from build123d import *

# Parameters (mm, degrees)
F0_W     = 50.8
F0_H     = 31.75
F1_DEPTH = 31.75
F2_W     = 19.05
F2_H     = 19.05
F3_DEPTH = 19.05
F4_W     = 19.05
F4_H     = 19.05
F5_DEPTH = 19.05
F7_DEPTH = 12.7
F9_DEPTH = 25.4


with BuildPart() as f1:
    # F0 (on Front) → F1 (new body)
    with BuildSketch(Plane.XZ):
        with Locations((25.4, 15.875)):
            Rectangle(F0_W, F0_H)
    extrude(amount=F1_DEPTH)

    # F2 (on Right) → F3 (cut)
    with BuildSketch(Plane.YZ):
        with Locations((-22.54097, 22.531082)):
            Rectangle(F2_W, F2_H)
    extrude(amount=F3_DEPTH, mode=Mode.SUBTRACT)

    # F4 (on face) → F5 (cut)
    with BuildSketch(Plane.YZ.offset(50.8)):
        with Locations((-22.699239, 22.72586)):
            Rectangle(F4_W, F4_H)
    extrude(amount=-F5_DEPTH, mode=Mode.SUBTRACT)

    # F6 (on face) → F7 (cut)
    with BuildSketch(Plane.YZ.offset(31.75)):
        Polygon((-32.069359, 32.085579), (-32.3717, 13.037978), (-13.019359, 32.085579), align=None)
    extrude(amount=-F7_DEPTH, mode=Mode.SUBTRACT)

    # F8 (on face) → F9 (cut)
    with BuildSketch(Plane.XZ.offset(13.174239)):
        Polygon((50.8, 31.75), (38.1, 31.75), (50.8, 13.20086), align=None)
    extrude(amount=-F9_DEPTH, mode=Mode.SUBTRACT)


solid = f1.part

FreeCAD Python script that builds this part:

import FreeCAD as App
import Part
import Sketcher

V = App.Vector
Q = App.Units.Quantity

doc = App.newDocument("Part")
body = doc.addObject("PartDesign::Body", "Body")

# Sketch on XZ plane
sketch1 = doc.addObject("Sketcher::SketchObject", "Sketch")
body.addObject(sketch1)
sketch1.AttachmentSupport = (doc.XZ_Plane, [""])
sketch1.MapMode = "FlatFace"
sketch1.addGeometry([
    Part.LineSegment(V(0, 32, 0), V(0, 0, 0)),
    Part.LineSegment(V(0, 0, 0), V(51, 0, 0)),
    Part.LineSegment(V(51, 0, 0), V(51, 32, 0)),
    Part.LineSegment(V(51, 32, 0), V(0, 32, 0)),
], False)
sketch1.addConstraint([
    Sketcher.Constraint("Coincident", 0, 2, 1, 1),
    Sketcher.Constraint("Coincident", 1, 2, 2, 1),
    Sketcher.Constraint("Coincident", 2, 2, 3, 1),
    Sketcher.Constraint("Coincident", 3, 2, 0, 1),
    Sketcher.Constraint("Vertical", 0),
    Sketcher.Constraint("Horizontal", 1),
    Sketcher.Constraint("Vertical", 2),
    Sketcher.Constraint("Horizontal", 3),
    Sketcher.Constraint("Coincident", 0, 2, -1, 1),
    Sketcher.Constraint("DistanceX", 1, 1, 1, 2, Q("2 in")),
    Sketcher.Constraint("DistanceY", 0, 2, 0, 1, Q("1.25 in")),
])
pad1 = doc.addObject("PartDesign::Pad", "Pad")
body.addObject(pad1)
pad1.Profile = sketch1
pad1.Length = Q("1.25 in")

# Sketch on YZ plane
sketch2 = doc.addObject("Sketcher::SketchObject", "Sketch001")
body.addObject(sketch2)
sketch2.AttachmentSupport = (doc.YZ_Plane, [""])
sketch2.MapMode = "FlatFace"
sketch2.addGeometry([
    Part.LineSegment(V(-32, 32, 0), V(-32, 13, 0)),
    Part.LineSegment(V(-32, 13, 0), V(-13, 13, 0)),
    Part.LineSegment(V(-13, 13, 0), V(-13, 32, 0)),
    Part.LineSegment(V(-13, 32, 0), V(-32, 32, 0)),
], False)
sketch2.addConstraint([
    Sketcher.Constraint("Coincident", 0, 2, 1, 1),
    Sketcher.Constraint("Coincident", 1, 2, 2, 1),
    Sketcher.Constraint("Coincident", 2, 2, 3, 1),
    Sketcher.Constraint("Coincident", 3, 2, 0, 1),
    Sketcher.Constraint("Vertical", 0),
    Sketcher.Constraint("Horizontal", 1),
    Sketcher.Constraint("Vertical", 2),
    Sketcher.Constraint("Horizontal", 3),
    Sketcher.Constraint("Equal", 3, 0),
    Sketcher.Constraint("DistanceX", 1, 1, 1, 2, Q("0.75 in")),
    Sketcher.Constraint("DistanceX", 0, 2, -1, 1, 32.06597),
    Sketcher.Constraint("DistanceY", -1, 1, 0, 2, 13.006082),
])
pocket1 = doc.addObject("PartDesign::Pocket", "Pocket")
body.addObject(pocket1)
pocket1.Profile = sketch2
pocket1.Length = Q("0.75 in")
pocket1.Reversed = True

# Sketch on YZ plane
sketch3 = doc.addObject("Sketcher::SketchObject", "Sketch002")
body.addObject(sketch3)
sketch3.AttachmentSupport = (doc.YZ_Plane, [""])
sketch3.MapMode = "FlatFace"
sketch3.AttachmentOffset = App.Placement(V(0, 0, 2 * 25.4), App.Rotation())
sketch3.addGeometry([
    Part.LineSegment(V(-32, 32, 0), V(-32, 13, 0)),
    Part.LineSegment(V(-32, 13, 0), V(-13, 13, 0)),
    Part.LineSegment(V(-13, 13, 0), V(-13, 32, 0)),
    Part.LineSegment(V(-13, 32, 0), V(-32, 32, 0)),
], False)
sketch3.addConstraint([
    Sketcher.Constraint("Coincident", 0, 2, 1, 1),
    Sketcher.Constraint("Coincident", 1, 2, 2, 1),
    Sketcher.Constraint("Coincident", 2, 2, 3, 1),
    Sketcher.Constraint("Coincident", 3, 2, 0, 1),
    Sketcher.Constraint("Vertical", 0),
    Sketcher.Constraint("Horizontal", 1),
    Sketcher.Constraint("Vertical", 2),
    Sketcher.Constraint("Horizontal", 3),
    Sketcher.Constraint("Equal", 3, 0),
    Sketcher.Constraint("DistanceX", 1, 1, 1, 2, Q("0.75 in")),
    Sketcher.Constraint("DistanceX", 0, 2, -1, 1, 32.224239),
    Sketcher.Constraint("DistanceY", -1, 1, 0, 2, 13.20086),
])
pocket2 = doc.addObject("PartDesign::Pocket", "Pocket001")
body.addObject(pocket2)
pocket2.Profile = sketch3
pocket2.Length = Q("0.75 in")

# Sketch on YZ plane
sketch4 = doc.addObject("Sketcher::SketchObject", "Sketch003")
body.addObject(sketch4)
sketch4.AttachmentSupport = (doc.YZ_Plane, [""])
sketch4.MapMode = "FlatFace"
sketch4.AttachmentOffset = App.Placement(V(0, 0, 1.25 * 25.4), App.Rotation())
sketch4.addGeometry([
    Part.LineSegment(V(-32.069359, 32.085579, 0), V(-32.3717, 13.037978, 0)),
    Part.LineSegment(V(-32.3717, 13.037978, 0), V(-13.019359, 32.085579, 0)),
    Part.LineSegment(V(-13.019359, 32.085579, 0), V(-32.069359, 32.085579, 0)),
], False)
sketch4.addConstraint([
    Sketcher.Constraint("Coincident", 0, 2, 1, 1),
    Sketcher.Constraint("Coincident", 1, 2, 2, 1),
    Sketcher.Constraint("Coincident", 2, 2, 0, 1),
    Sketcher.Constraint("Horizontal", 2),
    Sketcher.Constraint("DistanceX", 2, 2, 2, 1, Q("0.75 in")),
    Sketcher.Constraint("Distance", 0, Q("0.75 in")),
    Sketcher.Constraint("DistanceX", 0, 2, -1, 1, 32.3717),
    Sketcher.Constraint("DistanceY", 0, 2, 1, 2, 19.047601),
    Sketcher.Constraint("DistanceY", -1, 1, 0, 2, 13.037978),
])
pocket3 = doc.addObject("PartDesign::Pocket", "Pocket002")
body.addObject(pocket3)
pocket3.Profile = sketch4
pocket3.Length = Q("0.5 in")

# Sketch on XZ plane
sketch5 = doc.addObject("Sketcher::SketchObject", "Sketch004")
body.addObject(sketch5)
sketch5.AttachmentSupport = (doc.XZ_Plane, [""])
sketch5.MapMode = "FlatFace"
sketch5.AttachmentOffset = App.Placement(V(0, 0, 13.174239), App.Rotation())
sketch5.addGeometry([
    Part.LineSegment(V(51, 32, 0), V(38, 32, 0)),
    Part.LineSegment(V(38, 32, 0), V(51, 13, 0)),
    Part.LineSegment(V(51, 13, 0), V(51, 32, 0)),
], False)
sketch5.addConstraint([
    Sketcher.Constraint("Coincident", 0, 2, 1, 1),
    Sketcher.Constraint("Coincident", 1, 2, 2, 1),
    Sketcher.Constraint("Coincident", 2, 2, 0, 1),
    Sketcher.Constraint("Horizontal", 0),
    Sketcher.Constraint("Vertical", 2),
    Sketcher.Constraint("DistanceX", 0, 2, 0, 1, Q("0.5 in")),
    Sketcher.Constraint("DistanceX", -1, 1, 1, 2, Q("2 in")),
    Sketcher.Constraint("DistanceY", -1, 1, 0, 2, Q("1.25 in")),
    Sketcher.Constraint("DistanceY", 2, 1, 2, 2, 18.54914),
])
pocket4 = doc.addObject("PartDesign::Pocket", "Pocket003")
body.addObject(pocket4)
pocket4.Profile = sketch5
pocket4.Length = Q("1 in")

doc.recompute()
